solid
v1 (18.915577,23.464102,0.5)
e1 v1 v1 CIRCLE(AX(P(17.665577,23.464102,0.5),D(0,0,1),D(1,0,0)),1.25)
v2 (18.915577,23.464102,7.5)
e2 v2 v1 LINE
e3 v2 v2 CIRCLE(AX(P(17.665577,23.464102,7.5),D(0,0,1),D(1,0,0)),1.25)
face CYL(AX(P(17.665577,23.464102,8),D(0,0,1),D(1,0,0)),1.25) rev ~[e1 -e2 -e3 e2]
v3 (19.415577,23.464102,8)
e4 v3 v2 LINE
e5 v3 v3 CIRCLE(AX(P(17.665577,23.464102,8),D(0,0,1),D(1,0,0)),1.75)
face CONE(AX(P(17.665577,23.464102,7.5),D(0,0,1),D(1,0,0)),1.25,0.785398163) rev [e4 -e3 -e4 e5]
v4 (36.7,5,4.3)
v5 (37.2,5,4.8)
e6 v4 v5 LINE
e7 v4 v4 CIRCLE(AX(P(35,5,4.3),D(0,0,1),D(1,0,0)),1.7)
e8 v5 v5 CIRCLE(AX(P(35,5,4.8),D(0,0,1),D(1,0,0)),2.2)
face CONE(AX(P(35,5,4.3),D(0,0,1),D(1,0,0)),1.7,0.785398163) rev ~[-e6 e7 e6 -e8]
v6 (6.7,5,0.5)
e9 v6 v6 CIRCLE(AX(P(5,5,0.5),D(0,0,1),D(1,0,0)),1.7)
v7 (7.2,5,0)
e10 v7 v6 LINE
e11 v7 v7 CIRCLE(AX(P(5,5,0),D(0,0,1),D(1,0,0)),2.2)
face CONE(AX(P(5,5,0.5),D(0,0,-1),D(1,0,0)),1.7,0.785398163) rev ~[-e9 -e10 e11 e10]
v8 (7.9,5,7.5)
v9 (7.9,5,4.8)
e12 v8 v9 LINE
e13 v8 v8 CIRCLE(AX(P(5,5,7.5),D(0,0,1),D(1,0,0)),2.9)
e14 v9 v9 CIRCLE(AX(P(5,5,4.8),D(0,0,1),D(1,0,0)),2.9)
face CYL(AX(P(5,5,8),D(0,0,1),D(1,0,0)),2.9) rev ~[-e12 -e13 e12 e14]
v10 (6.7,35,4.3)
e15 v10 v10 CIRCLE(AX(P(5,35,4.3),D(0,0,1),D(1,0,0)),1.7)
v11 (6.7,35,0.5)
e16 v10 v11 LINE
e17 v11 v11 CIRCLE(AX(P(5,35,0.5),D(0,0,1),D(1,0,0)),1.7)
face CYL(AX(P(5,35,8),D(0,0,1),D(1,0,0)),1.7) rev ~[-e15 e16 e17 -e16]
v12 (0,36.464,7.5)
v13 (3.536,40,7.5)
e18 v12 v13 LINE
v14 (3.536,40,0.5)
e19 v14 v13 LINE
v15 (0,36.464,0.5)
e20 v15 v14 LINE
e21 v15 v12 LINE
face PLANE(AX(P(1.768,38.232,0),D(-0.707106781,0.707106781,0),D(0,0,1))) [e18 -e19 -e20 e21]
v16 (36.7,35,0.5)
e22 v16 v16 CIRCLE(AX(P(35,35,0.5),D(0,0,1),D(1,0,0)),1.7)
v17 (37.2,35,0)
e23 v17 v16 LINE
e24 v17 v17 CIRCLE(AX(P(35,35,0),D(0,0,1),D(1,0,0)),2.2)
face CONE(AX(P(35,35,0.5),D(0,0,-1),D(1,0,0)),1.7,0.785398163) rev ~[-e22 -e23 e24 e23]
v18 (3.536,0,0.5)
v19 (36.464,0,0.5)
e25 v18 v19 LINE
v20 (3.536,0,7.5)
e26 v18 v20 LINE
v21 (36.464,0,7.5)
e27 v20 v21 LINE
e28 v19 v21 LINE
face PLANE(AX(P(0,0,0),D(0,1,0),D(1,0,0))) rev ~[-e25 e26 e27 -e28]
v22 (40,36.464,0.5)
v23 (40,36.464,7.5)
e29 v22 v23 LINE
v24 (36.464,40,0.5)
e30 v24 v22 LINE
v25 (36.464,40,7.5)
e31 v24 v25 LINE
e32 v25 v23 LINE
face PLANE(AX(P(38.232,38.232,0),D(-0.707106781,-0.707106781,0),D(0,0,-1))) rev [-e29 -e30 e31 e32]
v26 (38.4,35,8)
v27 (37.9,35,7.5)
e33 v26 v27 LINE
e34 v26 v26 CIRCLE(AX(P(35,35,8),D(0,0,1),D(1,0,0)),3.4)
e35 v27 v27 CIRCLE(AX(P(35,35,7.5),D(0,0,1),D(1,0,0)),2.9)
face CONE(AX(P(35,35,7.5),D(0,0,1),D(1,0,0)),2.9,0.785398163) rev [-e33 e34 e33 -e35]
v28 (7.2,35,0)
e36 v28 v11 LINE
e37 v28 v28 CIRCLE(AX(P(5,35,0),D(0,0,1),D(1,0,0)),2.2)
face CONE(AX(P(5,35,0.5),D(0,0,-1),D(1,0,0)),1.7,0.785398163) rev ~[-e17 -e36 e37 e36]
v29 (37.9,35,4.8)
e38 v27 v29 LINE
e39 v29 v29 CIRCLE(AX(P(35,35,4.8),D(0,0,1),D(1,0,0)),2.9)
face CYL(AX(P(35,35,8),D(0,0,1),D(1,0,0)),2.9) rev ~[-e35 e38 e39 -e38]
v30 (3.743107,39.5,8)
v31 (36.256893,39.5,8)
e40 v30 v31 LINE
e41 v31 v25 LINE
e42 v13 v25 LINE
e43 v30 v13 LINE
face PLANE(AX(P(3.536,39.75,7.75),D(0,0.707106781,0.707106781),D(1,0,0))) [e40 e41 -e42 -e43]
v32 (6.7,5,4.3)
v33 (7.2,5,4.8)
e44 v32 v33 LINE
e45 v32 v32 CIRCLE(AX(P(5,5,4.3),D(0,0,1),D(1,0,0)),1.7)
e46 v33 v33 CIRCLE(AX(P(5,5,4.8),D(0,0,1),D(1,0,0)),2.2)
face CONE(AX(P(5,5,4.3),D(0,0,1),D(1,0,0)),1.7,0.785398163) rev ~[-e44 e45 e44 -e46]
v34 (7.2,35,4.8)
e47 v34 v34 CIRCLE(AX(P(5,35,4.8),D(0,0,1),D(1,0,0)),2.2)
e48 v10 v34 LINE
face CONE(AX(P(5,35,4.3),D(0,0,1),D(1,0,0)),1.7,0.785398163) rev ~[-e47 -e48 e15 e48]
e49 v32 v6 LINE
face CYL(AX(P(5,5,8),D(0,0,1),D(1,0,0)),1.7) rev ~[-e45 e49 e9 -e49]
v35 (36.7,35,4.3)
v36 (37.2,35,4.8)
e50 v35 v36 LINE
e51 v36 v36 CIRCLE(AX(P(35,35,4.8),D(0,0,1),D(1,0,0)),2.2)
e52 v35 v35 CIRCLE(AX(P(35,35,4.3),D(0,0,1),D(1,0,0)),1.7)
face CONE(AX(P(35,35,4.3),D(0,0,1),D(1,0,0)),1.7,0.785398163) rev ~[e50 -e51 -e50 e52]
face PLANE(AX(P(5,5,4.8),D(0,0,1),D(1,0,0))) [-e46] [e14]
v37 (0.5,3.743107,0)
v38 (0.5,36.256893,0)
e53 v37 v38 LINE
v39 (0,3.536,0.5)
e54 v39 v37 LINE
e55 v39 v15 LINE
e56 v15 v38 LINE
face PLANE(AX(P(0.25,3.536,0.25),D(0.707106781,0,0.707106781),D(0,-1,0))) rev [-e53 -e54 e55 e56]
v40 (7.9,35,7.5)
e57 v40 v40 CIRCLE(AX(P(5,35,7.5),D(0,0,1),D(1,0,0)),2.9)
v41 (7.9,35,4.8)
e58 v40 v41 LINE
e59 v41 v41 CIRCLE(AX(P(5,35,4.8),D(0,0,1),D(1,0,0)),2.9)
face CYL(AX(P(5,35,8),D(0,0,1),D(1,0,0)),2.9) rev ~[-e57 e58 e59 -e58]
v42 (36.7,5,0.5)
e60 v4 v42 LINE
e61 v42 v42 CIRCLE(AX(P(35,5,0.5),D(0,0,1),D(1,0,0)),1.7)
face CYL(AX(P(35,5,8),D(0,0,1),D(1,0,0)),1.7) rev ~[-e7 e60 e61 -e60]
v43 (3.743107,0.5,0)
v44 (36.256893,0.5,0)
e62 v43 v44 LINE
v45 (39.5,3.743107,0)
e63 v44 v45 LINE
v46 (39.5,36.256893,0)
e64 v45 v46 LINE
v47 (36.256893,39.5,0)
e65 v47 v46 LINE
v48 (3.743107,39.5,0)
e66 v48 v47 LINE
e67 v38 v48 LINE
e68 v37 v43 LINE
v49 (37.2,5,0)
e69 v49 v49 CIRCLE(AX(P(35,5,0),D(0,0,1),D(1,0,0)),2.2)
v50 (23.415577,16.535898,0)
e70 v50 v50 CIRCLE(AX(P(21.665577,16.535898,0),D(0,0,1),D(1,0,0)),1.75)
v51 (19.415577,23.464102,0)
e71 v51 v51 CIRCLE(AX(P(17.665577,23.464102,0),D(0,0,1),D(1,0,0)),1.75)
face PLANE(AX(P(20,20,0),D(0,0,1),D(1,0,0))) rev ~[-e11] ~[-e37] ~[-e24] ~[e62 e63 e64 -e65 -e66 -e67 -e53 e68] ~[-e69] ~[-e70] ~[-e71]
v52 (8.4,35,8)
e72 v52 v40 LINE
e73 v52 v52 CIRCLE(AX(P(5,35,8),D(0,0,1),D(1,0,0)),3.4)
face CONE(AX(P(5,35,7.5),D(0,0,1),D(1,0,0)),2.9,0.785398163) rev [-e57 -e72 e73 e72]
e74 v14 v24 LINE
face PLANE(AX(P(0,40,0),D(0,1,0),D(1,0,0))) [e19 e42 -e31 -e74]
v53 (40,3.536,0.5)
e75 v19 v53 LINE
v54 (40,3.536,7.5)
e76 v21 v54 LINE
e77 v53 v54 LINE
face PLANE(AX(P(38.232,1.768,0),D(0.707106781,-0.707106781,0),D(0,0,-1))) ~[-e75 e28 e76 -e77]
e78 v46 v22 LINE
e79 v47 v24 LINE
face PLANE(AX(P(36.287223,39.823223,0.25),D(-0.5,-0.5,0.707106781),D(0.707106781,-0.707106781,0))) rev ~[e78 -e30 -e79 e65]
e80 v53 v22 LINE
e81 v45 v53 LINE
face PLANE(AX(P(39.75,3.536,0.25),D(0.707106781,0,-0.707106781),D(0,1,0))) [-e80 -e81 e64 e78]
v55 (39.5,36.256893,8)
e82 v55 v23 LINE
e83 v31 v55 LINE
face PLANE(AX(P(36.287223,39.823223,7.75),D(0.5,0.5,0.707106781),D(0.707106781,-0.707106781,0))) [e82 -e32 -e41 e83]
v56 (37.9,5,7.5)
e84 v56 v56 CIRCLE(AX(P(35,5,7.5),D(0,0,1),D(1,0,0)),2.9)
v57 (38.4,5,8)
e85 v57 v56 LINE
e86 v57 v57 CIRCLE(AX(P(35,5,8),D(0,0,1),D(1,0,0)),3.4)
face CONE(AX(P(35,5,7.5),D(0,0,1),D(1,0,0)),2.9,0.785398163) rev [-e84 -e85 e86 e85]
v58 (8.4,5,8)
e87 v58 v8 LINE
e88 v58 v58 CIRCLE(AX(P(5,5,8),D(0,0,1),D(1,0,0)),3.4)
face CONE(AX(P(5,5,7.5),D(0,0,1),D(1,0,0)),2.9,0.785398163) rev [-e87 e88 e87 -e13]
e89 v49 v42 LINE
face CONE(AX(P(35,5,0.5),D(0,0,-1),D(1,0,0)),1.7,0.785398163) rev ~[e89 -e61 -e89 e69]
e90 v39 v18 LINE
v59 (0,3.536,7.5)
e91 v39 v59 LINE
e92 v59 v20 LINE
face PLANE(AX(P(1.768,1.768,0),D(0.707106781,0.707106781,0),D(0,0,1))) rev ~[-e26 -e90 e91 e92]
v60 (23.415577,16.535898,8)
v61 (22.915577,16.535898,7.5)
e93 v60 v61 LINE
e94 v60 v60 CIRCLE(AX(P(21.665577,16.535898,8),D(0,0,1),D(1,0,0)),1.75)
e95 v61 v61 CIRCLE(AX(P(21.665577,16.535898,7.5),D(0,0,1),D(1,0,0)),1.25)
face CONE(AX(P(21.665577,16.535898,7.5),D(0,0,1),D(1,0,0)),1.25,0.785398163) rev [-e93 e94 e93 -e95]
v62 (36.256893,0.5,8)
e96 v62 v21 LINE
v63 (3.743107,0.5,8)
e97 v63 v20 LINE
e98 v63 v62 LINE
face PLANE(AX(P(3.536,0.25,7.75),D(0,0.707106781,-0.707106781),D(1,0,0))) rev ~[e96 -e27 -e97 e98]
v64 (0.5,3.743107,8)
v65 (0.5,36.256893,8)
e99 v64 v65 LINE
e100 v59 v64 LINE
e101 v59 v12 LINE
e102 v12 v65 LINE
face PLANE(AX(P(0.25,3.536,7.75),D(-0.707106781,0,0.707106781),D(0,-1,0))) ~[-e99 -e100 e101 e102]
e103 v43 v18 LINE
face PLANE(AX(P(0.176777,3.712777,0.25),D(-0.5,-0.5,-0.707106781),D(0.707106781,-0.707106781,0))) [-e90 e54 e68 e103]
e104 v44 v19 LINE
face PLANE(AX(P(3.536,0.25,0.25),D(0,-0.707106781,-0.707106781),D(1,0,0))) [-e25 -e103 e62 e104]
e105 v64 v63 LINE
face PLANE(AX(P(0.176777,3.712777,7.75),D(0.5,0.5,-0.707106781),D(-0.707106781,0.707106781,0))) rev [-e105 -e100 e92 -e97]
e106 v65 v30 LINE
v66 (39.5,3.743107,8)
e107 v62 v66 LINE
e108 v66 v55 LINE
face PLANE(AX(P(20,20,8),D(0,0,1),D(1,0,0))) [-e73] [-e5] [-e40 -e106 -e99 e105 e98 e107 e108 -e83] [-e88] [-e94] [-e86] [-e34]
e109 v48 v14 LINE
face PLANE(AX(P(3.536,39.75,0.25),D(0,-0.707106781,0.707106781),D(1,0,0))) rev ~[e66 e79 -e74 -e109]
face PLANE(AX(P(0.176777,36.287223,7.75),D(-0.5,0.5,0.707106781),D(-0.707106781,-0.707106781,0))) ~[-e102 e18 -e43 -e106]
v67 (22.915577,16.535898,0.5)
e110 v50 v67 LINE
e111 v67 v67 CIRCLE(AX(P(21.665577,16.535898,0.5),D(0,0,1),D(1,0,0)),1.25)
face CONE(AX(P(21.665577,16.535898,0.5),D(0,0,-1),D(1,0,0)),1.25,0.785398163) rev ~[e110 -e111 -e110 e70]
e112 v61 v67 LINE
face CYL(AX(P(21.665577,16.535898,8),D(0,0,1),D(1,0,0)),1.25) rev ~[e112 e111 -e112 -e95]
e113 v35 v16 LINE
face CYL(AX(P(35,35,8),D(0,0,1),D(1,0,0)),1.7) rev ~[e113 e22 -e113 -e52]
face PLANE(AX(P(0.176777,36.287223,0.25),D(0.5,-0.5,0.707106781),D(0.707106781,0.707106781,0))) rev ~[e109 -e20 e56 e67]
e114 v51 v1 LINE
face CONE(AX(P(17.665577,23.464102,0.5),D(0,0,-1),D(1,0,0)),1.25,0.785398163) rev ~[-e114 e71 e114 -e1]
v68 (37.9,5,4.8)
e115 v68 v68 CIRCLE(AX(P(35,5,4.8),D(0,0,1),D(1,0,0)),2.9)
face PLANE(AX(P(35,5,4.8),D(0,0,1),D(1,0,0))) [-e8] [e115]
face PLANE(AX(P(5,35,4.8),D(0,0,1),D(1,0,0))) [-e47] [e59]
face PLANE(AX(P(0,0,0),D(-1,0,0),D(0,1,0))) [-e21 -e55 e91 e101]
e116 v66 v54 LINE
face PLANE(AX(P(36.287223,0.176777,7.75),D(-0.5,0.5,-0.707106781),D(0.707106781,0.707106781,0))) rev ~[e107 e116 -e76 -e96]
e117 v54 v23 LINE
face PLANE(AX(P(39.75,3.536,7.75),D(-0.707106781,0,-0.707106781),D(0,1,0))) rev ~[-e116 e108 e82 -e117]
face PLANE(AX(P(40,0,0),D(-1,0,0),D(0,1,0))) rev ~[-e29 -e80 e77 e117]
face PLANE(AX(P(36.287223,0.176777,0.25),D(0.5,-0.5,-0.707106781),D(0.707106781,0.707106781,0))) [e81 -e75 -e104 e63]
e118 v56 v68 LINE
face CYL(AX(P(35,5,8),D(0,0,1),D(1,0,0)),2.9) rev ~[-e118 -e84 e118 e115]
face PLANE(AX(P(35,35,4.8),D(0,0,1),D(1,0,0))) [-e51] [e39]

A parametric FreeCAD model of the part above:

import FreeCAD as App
import Part
import Sketcher
from FreeCAD import Vector


def edges_at(feature, points):
    """Names of the edges that pass closest to the given points."""
    edges = feature.Shape.Edges
    near = lambda p: min(range(len(edges)), key=lambda i: edges[i].distToShape(Part.Vertex(*p))[0])
    return sorted({f"Edge{near(p) + 1}" for p in points})


def add_polygon(sketch, points):
    """Adds a closed chain of lines whose ends are joined by coincident constraints."""
    first, n = sketch.GeometryCount, len(points)
    for a, b in zip(points, points[1:] + points[:1]):
        sketch.addGeometry(Part.LineSegment(App.Vector(*a, 0), App.Vector(*b, 0)), False)
    for i in range(n):
        sketch.addConstraint(Sketcher.Constraint("Coincident", first + i, 2, first + (i + 1) % n, 1))

doc = App.newDocument("Part")
body = doc.addObject("PartDesign::Body", "Body")

sketch1 = body.newObject("Sketcher::SketchObject", "Sketch")
sketch1.AttachmentSupport = (doc.getObject("XY_Plane"), [""])
sketch1.MapMode = "FlatFace"
add_polygon(sketch1, [(0, 40), (0, 0), (40, 0), (40, 40)])
sketch1.addConstraint([
    Sketcher.Constraint("Vertical", 0),
    Sketcher.Constraint("Horizontal", 1),
    Sketcher.Constraint("Vertical", 2),
    Sketcher.Constraint("Horizontal", 3),
    Sketcher.Constraint("Coincident", 0, 2, -1, 1),
    Sketcher.Constraint("Equal", 3, 0),
    Sketcher.Constraint("DistanceX", 1, 1, 1, 2, 40.0),
])
pad1 = body.newObject("PartDesign::Pad", "Pad")
pad1.Profile = sketch1
pad1.Length = 8

sketch2 = body.newObject("Sketcher::SketchObject", "Sketch001")
sketch2.AttachmentSupport = (doc.getObject("XY_Plane"), [""])
sketch2.MapMode = "FlatFace"
sketch2.AttachmentOffset = App.Placement(Vector(0, 0, 8), App.Rotation())
sketch2.addGeometry([
    Part.Circle(Vector(5, 35, 0), Vector(0, 0, 1), 1.7),
    Part.Circle(Vector(35, 35, 0), Vector(0, 0, 1), 1.7),
    Part.Circle(Vector(5, 5, 0), Vector(0, 0, 1), 1.7),
    Part.Circle(Vector(35, 5, 0), Vector(0, 0, 1), 1.7),
], False)
sketch2.addConstraint([
    Sketcher.Constraint("Equal", 0, 1),
    Sketcher.Constraint("Equal", 1, 2),
    Sketcher.Constraint("Equal", 2, 3),
    Sketcher.Constraint("Horizontal", 0, 3, 1, 3),
    Sketcher.Constraint("Horizontal", 2, 3, 3, 3),
    Sketcher.Constraint("Vertical", 0, 3, 2, 3),
    Sketcher.Constraint("Vertical", 1, 3, 3, 3),
    Sketcher.Constraint("Diameter", 0, 3.4),
    Sketcher.Constraint("DistanceX", -1, 1, 0, 3, 5.0),
    Sketcher.Constraint("DistanceY", -1, 1, 0, 3, 35.0),
    Sketcher.Constraint("DistanceX", -1, 1, 1, 3, 35.0),
    Sketcher.Constraint("DistanceY", -1, 1, 2, 3, 5.0),
])
pocket1 = body.newObject("PartDesign::Pocket", "Pocket")
pocket1.Profile = sketch2
pocket1.Type = "ThroughAll"

sketch3 = body.newObject("Sketcher::SketchObject", "Sketch002")
sketch3.AttachmentSupport = (doc.getObject("XY_Plane"), [""])
sketch3.MapMode = "FlatFace"
sketch3.AttachmentOffset = App.Placement(Vector(0, 0, 8), App.Rotation())
sketch3.addGeometry([
    Part.Circle(Vector(17.7, 23.5, 0), Vector(0, 0, 1), 1.2),
    Part.Circle(Vector(21.7, 16.5, 0), Vector(0, 0, 1), 1.2),
], False)
sketch3.addConstraint([
    Sketcher.Constraint("Equal", 0, 1),
    Sketcher.Constraint("Diameter", 0, 2.5),
    Sketcher.Constraint("DistanceX", 0, 3, 1, 3, 4.0),
    Sketcher.Constraint("DistanceY", -1, 1, 0, 3, 23.464102),
    Sketcher.Constraint("DistanceY", -1, 1, 1, 3, 16.535898),
    Sketcher.Constraint("DistanceX", -1, 1, 0, 3, 17.665577),
])
pocket2 = body.newObject("PartDesign::Pocket", "Pocket001")
pocket2.Profile = sketch3
pocket2.Type = "ThroughAll"

sketch4 = body.newObject("Sketcher::SketchObject", "Sketch003")
sketch4.AttachmentSupport = (doc.getObject("XY_Plane"), [""])
sketch4.MapMode = "FlatFace"
sketch4.AttachmentOffset = App.Placement(Vector(0, 0, 8), App.Rotation())
sketch4.addGeometry([
    Part.Circle(Vector(5, 35, 0), Vector(0, 0, 1), 2.9),
    Part.Circle(Vector(35, 35, 0), Vector(0, 0, 1), 2.9),
    Part.Circle(Vector(5, 5, 0), Vector(0, 0, 1), 2.9),
    Part.Circle(Vector(35, 5, 0), Vector(0, 0, 1), 2.9),
], False)
sketch4.addConstraint([
    Sketcher.Constraint("Equal", 0, 1),
    Sketcher.Constraint("Equal", 1, 2),
    Sketcher.Constraint("Equal", 2, 3),
    Sketcher.Constraint("Horizontal", 0, 3, 1, 3),
    Sketcher.Constraint("Horizontal", 2, 3, 3, 3),
    Sketcher.Constraint("Vertical", 0, 3, 2, 3),
    Sketcher.Constraint("Vertical", 1, 3, 3, 3),
    Sketcher.Constraint("Diameter", 0, 5.8),
    Sketcher.Constraint("DistanceX", -1, 1, 0, 3, 5.0),
    Sketcher.Constraint("DistanceY", -1, 1, 0, 3, 35.0),
    Sketcher.Constraint("DistanceX", -1, 1, 1, 3, 35.0),
    Sketcher.Constraint("DistanceY", -1, 1, 2, 3, 5.0),
])
pocket3 = body.newObject("PartDesign::Pocket", "Pocket002")
pocket3.Profile = sketch4
pocket3.Length = 3.2
doc.recompute()

chamfer = body.newObject("PartDesign::Chamfer", "Chamfer")
chamfer.Base = (pocket3, edges_at(pocket3, [
    (0, 40, 4),
    (40, 40, 4),
    (40, 0, 4),
    (0, 0, 4),
]))
chamfer.Size = 3.536
doc.recompute()

chamfer2 = body.newObject("PartDesign::Chamfer", "Chamfer001")
chamfer2.Base = (chamfer, edges_at(chamfer, [
    (33.3, 35, 0),
    (3.3, 5, 0),
    (33.3, 5, 0),
    (3.3, 35, 0),
    (16.416, 23.464, 0),
    (16.416, 23.464, 8),
    (20.416, 16.536, 0),
    (20.416, 16.536, 8),
    (32.1, 35, 8),
    (33.3, 35, 4.8),
    (2.1, 5, 8),
    (3.3, 5, 4.8),
    (32.1, 5, 8),
    (33.3, 5, 4.8),
    (2.1, 35, 8),
    (3.3, 35, 4.8),
    (0, 20, 0),
    (0, 20, 8),
    (20, 40, 0),
    (40, 20, 0),
    (20, 0, 0),
    (1.768, 1.768, 0),
    (38.232, 1.768, 0),
    (38.232, 38.232, 0),
    (1.768, 38.232, 0),
    (20, 40, 8),
    (20, 0, 8),
    (40, 20, 8),
    (1.768, 1.768, 8),
    (38.232, 1.768, 8),
    (38.232, 38.232, 8),
    (1.768, 38.232, 8),
]))
chamfer2.Size = 0.5

doc.recompute()
